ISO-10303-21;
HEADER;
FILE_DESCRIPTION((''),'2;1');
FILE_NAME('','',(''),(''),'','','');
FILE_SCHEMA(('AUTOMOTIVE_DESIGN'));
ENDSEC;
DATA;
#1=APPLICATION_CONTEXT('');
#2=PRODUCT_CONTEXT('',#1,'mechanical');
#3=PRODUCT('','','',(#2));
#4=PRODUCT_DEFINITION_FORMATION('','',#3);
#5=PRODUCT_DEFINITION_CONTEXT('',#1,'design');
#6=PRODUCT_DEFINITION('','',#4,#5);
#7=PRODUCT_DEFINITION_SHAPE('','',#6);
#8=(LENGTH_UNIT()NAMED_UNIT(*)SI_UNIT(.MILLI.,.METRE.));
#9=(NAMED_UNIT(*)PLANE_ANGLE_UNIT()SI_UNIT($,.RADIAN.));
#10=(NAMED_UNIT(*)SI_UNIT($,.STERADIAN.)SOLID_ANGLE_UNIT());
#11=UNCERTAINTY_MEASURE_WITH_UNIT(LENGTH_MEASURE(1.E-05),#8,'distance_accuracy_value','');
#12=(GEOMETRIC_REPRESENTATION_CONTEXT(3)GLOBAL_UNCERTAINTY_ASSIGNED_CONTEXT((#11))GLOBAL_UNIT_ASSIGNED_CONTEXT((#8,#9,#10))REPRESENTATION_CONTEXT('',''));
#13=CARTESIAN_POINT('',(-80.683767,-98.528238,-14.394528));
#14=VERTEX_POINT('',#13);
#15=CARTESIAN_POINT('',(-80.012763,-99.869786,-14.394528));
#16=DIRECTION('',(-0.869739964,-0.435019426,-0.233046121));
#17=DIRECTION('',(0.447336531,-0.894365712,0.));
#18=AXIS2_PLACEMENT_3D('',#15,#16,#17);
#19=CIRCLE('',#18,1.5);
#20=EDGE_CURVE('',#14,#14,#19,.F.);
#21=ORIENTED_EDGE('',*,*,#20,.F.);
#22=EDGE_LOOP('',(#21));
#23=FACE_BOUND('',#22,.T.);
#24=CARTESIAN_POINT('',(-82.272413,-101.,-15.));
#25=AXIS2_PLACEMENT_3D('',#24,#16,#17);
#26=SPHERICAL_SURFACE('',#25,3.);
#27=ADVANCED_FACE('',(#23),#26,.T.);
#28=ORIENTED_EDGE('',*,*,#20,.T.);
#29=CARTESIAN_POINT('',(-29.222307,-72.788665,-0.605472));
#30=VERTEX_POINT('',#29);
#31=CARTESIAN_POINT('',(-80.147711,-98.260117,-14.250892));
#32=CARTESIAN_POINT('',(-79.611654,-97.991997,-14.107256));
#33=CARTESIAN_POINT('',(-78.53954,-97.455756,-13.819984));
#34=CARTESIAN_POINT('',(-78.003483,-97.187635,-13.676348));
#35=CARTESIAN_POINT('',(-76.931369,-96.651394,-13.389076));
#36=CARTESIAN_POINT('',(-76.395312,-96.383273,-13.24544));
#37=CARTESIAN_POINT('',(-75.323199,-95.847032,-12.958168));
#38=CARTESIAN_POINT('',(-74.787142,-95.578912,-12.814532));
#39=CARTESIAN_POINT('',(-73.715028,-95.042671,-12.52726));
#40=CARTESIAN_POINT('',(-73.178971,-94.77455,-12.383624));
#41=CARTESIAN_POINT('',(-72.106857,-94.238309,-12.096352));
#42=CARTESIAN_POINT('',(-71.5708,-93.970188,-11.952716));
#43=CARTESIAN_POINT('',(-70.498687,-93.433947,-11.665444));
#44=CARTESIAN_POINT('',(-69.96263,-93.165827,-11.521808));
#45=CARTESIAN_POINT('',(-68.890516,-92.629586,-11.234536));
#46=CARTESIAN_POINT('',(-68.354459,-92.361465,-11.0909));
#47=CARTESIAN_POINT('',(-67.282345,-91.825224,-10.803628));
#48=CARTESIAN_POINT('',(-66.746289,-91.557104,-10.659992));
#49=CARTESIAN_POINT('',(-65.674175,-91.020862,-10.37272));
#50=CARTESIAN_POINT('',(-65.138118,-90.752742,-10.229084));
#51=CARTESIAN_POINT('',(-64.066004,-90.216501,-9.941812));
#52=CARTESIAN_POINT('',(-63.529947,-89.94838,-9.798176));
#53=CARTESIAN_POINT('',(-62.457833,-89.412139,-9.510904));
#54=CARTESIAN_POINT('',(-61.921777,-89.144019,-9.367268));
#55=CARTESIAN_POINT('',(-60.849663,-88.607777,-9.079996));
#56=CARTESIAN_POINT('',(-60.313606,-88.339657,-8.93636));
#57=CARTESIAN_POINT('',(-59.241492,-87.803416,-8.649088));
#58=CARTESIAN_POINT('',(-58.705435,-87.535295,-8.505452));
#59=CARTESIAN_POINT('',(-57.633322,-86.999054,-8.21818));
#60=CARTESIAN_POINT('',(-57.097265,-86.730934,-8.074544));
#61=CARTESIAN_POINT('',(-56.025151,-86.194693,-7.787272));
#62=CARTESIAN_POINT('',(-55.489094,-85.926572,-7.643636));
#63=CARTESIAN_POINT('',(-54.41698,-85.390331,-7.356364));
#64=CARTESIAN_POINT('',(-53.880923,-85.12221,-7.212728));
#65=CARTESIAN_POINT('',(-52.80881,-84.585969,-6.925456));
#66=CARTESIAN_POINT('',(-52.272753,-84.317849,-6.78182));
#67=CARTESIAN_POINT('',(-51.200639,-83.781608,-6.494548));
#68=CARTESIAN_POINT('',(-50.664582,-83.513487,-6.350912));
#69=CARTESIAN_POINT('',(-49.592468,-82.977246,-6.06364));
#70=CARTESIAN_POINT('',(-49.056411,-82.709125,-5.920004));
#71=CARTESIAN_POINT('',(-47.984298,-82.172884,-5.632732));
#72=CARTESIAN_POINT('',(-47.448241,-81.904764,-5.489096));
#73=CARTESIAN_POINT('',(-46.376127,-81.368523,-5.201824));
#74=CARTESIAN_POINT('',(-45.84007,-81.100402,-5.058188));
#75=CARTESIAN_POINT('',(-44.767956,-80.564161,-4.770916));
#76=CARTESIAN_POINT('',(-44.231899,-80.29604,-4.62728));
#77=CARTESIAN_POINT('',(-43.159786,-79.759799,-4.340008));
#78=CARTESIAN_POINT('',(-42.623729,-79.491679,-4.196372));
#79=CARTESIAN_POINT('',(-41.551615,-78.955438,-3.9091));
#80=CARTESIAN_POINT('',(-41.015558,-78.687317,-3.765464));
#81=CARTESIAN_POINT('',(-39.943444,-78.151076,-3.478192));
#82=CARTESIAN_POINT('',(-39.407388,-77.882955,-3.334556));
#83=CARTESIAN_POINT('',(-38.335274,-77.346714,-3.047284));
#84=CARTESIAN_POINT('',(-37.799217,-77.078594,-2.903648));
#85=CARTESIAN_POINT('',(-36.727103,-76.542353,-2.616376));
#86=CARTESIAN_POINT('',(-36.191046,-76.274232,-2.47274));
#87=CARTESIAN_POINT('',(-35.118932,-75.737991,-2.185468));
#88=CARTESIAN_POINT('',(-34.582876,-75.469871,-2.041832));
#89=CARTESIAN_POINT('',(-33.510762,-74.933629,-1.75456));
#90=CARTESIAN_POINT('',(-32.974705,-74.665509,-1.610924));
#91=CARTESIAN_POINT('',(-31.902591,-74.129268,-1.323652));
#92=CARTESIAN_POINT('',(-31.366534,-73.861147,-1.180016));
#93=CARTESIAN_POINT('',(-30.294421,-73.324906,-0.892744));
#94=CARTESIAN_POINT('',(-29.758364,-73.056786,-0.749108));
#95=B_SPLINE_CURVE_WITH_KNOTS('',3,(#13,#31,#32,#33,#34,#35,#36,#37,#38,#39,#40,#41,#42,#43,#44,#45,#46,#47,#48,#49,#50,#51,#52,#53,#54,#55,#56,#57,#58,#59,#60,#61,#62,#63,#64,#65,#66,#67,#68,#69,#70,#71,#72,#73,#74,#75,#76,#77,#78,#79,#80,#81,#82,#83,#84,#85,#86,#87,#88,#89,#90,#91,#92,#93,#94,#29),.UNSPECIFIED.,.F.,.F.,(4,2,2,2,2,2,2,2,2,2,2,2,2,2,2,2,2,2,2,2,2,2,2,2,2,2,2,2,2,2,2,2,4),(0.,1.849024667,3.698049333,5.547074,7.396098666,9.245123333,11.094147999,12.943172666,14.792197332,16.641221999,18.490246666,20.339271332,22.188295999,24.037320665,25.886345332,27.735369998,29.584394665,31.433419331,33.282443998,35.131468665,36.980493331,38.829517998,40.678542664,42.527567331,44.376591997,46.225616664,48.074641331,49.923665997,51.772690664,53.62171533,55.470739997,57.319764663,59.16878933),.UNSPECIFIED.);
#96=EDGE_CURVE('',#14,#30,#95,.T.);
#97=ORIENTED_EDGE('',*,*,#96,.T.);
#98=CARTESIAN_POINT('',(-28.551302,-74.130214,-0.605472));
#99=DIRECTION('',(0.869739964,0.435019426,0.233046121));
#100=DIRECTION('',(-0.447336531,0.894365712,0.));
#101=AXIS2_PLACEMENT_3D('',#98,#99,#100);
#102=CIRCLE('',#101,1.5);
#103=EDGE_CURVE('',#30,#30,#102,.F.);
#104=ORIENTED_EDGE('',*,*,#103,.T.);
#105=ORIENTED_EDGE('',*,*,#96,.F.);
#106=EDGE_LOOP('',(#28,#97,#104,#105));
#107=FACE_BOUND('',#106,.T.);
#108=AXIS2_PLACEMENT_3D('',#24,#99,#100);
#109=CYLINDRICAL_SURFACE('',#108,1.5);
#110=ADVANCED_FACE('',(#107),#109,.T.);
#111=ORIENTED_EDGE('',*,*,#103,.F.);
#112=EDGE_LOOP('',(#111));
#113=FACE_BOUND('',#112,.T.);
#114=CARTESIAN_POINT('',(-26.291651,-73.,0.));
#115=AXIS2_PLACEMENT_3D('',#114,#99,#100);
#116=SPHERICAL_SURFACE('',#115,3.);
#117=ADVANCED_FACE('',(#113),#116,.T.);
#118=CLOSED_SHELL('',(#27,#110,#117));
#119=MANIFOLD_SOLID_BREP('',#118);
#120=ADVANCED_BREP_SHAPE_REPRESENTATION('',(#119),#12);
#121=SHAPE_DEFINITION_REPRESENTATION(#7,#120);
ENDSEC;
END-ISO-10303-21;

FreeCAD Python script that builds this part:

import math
import FreeCAD as App
import Part
import Sketcher
from FreeCAD import Vector
Q = App.Units.Quantity

doc = App.newDocument("Part")
params = doc.addObject("Spreadsheet::Sheet", "Params")
for row, (alias, value) in enumerate([
    ("sketch1_diameter", "3 mm"),
    ("pad1_length", "64.364942 mm"),
    ("sketch2_radius", "3 mm"),
    ("revolution_angle", "360 deg"),
    ("sketch3_radius", "3 mm"),
    ("revolution2_angle", "360 deg"),
], start=1):
    params.set(f"A{row}", alias)
    params.set(f"B{row}", "=" + value)
    params.setAlias(f"B{row}", alias)

body = doc.addObject("PartDesign::Body", "Body")

# Sketch on an angled plane
sketch1 = body.newObject("Sketcher::SketchObject", "Sketch")
sketch1.Placement = App.Placement(Vector(-47.508083, -23.762204, -12.729752), App.Rotation(Vector(-0.20842846, -0.104250043, 0.972465683), Vector(-0.447336531, 0.894365712, 0), Vector(-0.869739964, -0.435019426, -0.233046121), "ZXY"))
sketch1.addGeometry(Part.Circle(Vector(13.1, -53.5, 0), Vector(0, 0, 1), 1.5), False)
sketch1.addConstraint(Sketcher.Constraint("Diameter", 0, Q("3 mm")))
sketch1.addConstraint(Sketcher.Constraint("DistanceX", -1, 1, 0, 3, Q("13.090182 mm")))
sketch1.addConstraint(Sketcher.Constraint("DistanceY", 0, 3, -1, 1, Q("53.527481 mm")))
sketch1.setExpression("Constraints[0]", "Params.sketch1_diameter")
pad1 = body.newObject("PartDesign::Pad", "Pad")
pad1.Profile = sketch1
pad1.setExpression("Length", "Params.pad1_length")

# Sketch on XZ plane
sketch2 = body.newObject("Sketcher::SketchObject", "Sketch001")
sketch2.AttachmentSupport = (doc.getObject("XZ_Plane"), [""])
sketch2.MapMode = "FlatFace"
sketch2.AttachmentOffset = App.Placement(Vector(0, 0, 73), App.Rotation())
sketch2.addGeometry(Part.LineSegment(Vector(-26.3, 3, 0), Vector(-26.3, -3, 0)), False)
sketch2.addGeometry(Part.ArcOfCircle(Part.Circle(Vector(-26.3, 0, 0), Vector(0, 0, 1), 3), math.radians(-90), math.radians(90)), False)
sketch2.addGeometry(Part.LineSegment(Vector(-26.3, -3, 0), Vector(-26.3, 3, 0)), True)  # axis
sketch2.addConstraint(Sketcher.Constraint("Coincident", 0, 1, 1, 2))
sketch2.addConstraint(Sketcher.Constraint("Coincident", 1, 1, 0, 2))
sketch2.addConstraint(Sketcher.Constraint("Vertical", 0))
sketch2.addConstraint(Sketcher.Constraint("Vertical", 2))
sketch2.addConstraint(Sketcher.Constraint("Coincident", 2, 1, 1, 1))
sketch2.addConstraint(Sketcher.Constraint("PointOnObject", 1, 3, -1))
sketch2.addConstraint(Sketcher.Constraint("Vertical", 1, 3, 0, 1))
sketch2.addConstraint(Sketcher.Constraint("Equal", 0, 2))
sketch2.addConstraint(Sketcher.Constraint("Radius", 1, Q("3 mm")))
sketch2.addConstraint(Sketcher.Constraint("DistanceX", 1, 3, -1, 1, Q("26.291651 mm")))
sketch2.setExpression("Constraints[8]", "Params.sketch2_radius")
revolution = body.newObject("PartDesign::Revolution", "Revolution")
revolution.Profile = sketch2
revolution.ReferenceAxis = (sketch2, ["Axis0"])
revolution.setExpression("Angle", "Params.revolution_angle")

# Sketch on XZ plane
sketch3 = body.newObject("Sketcher::SketchObject", "Sketch002")
sketch3.AttachmentSupport = (doc.getObject("XZ_Plane"), [""])
sketch3.MapMode = "FlatFace"
sketch3.AttachmentOffset = App.Placement(Vector(0, 0, 101), App.Rotation())
sketch3.addGeometry(Part.LineSegment(Vector(-82.3, -12, 0), Vector(-82.3, -18, 0)), False)
sketch3.addGeometry(Part.ArcOfCircle(Part.Circle(Vector(-82.3, -15, 0), Vector(0, 0, 1), 3), math.radians(-90), math.radians(90)), False)
sketch3.addGeometry(Part.LineSegment(Vector(-82.3, -18, 0), Vector(-82.3, -12, 0)), True)  # axis
sketch3.addConstraint(Sketcher.Constraint("Coincident", 0, 1, 1, 2))
sketch3.addConstraint(Sketcher.Constraint("Coincident", 1, 1, 0, 2))
sketch3.addConstraint(Sketcher.Constraint("Vertical", 0))
sketch3.addConstraint(Sketcher.Constraint("Vertical", 2))
sketch3.addConstraint(Sketcher.Constraint("Coincident", 2, 1, 1, 1))
sketch3.addConstraint(Sketcher.Constraint("Vertical", 1, 3, 0, 1))
sketch3.addConstraint(Sketcher.Constraint("Equal", 0, 2))
sketch3.addConstraint(Sketcher.Constraint("Radius", 1, Q("3 mm")))
sketch3.addConstraint(Sketcher.Constraint("DistanceY", 1, 3, -1, 1, Q("15 mm")))
sketch3.addConstraint(Sketcher.Constraint("DistanceX", 1, 3, -1, 1, Q("82.272413 mm")))
sketch3.setExpression("Constraints[7]", "Params.sketch3_radius")
revolution2 = body.newObject("PartDesign::Revolution", "Revolution001")
revolution2.Profile = sketch3
revolution2.ReferenceAxis = (sketch3, ["Axis0"])
revolution2.setExpression("Angle", "Params.revolution2_angle")

doc.recompute()
